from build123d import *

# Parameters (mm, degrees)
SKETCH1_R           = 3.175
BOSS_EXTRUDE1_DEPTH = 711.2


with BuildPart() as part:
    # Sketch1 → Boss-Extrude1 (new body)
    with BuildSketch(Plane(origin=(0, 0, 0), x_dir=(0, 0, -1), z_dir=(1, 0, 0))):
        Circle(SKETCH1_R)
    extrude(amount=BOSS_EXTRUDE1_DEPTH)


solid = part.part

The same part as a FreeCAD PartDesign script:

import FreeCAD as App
import Part
import Sketcher
Q = App.Units.Quantity

doc = App.newDocument("Part")
body = doc.addObject("PartDesign::Body", "Body")

# Sketch on YZ plane
sketch1 = body.newObject("Sketcher::SketchObject", "Sketch")
sketch1.AttachmentSupport = (doc.getObject("YZ_Plane"), [""])
sketch1.MapMode = "FlatFace"
sketch1.addGeometry(Part.Circle(App.Vector(0, 0, 0), App.Vector(0, 0, 1), 3.2), False)
sketch1.addConstraint(Sketcher.Constraint("Coincident", 0, 3, -1, 1))
sketch1.addConstraint(Sketcher.Constraint("Diameter", 0, Q("0.25 in")))
pad1 = body.newObject("PartDesign::Pad", "Pad")
pad1.Profile = sketch1
pad1.Length = Q("28 in")

doc.recompute()
